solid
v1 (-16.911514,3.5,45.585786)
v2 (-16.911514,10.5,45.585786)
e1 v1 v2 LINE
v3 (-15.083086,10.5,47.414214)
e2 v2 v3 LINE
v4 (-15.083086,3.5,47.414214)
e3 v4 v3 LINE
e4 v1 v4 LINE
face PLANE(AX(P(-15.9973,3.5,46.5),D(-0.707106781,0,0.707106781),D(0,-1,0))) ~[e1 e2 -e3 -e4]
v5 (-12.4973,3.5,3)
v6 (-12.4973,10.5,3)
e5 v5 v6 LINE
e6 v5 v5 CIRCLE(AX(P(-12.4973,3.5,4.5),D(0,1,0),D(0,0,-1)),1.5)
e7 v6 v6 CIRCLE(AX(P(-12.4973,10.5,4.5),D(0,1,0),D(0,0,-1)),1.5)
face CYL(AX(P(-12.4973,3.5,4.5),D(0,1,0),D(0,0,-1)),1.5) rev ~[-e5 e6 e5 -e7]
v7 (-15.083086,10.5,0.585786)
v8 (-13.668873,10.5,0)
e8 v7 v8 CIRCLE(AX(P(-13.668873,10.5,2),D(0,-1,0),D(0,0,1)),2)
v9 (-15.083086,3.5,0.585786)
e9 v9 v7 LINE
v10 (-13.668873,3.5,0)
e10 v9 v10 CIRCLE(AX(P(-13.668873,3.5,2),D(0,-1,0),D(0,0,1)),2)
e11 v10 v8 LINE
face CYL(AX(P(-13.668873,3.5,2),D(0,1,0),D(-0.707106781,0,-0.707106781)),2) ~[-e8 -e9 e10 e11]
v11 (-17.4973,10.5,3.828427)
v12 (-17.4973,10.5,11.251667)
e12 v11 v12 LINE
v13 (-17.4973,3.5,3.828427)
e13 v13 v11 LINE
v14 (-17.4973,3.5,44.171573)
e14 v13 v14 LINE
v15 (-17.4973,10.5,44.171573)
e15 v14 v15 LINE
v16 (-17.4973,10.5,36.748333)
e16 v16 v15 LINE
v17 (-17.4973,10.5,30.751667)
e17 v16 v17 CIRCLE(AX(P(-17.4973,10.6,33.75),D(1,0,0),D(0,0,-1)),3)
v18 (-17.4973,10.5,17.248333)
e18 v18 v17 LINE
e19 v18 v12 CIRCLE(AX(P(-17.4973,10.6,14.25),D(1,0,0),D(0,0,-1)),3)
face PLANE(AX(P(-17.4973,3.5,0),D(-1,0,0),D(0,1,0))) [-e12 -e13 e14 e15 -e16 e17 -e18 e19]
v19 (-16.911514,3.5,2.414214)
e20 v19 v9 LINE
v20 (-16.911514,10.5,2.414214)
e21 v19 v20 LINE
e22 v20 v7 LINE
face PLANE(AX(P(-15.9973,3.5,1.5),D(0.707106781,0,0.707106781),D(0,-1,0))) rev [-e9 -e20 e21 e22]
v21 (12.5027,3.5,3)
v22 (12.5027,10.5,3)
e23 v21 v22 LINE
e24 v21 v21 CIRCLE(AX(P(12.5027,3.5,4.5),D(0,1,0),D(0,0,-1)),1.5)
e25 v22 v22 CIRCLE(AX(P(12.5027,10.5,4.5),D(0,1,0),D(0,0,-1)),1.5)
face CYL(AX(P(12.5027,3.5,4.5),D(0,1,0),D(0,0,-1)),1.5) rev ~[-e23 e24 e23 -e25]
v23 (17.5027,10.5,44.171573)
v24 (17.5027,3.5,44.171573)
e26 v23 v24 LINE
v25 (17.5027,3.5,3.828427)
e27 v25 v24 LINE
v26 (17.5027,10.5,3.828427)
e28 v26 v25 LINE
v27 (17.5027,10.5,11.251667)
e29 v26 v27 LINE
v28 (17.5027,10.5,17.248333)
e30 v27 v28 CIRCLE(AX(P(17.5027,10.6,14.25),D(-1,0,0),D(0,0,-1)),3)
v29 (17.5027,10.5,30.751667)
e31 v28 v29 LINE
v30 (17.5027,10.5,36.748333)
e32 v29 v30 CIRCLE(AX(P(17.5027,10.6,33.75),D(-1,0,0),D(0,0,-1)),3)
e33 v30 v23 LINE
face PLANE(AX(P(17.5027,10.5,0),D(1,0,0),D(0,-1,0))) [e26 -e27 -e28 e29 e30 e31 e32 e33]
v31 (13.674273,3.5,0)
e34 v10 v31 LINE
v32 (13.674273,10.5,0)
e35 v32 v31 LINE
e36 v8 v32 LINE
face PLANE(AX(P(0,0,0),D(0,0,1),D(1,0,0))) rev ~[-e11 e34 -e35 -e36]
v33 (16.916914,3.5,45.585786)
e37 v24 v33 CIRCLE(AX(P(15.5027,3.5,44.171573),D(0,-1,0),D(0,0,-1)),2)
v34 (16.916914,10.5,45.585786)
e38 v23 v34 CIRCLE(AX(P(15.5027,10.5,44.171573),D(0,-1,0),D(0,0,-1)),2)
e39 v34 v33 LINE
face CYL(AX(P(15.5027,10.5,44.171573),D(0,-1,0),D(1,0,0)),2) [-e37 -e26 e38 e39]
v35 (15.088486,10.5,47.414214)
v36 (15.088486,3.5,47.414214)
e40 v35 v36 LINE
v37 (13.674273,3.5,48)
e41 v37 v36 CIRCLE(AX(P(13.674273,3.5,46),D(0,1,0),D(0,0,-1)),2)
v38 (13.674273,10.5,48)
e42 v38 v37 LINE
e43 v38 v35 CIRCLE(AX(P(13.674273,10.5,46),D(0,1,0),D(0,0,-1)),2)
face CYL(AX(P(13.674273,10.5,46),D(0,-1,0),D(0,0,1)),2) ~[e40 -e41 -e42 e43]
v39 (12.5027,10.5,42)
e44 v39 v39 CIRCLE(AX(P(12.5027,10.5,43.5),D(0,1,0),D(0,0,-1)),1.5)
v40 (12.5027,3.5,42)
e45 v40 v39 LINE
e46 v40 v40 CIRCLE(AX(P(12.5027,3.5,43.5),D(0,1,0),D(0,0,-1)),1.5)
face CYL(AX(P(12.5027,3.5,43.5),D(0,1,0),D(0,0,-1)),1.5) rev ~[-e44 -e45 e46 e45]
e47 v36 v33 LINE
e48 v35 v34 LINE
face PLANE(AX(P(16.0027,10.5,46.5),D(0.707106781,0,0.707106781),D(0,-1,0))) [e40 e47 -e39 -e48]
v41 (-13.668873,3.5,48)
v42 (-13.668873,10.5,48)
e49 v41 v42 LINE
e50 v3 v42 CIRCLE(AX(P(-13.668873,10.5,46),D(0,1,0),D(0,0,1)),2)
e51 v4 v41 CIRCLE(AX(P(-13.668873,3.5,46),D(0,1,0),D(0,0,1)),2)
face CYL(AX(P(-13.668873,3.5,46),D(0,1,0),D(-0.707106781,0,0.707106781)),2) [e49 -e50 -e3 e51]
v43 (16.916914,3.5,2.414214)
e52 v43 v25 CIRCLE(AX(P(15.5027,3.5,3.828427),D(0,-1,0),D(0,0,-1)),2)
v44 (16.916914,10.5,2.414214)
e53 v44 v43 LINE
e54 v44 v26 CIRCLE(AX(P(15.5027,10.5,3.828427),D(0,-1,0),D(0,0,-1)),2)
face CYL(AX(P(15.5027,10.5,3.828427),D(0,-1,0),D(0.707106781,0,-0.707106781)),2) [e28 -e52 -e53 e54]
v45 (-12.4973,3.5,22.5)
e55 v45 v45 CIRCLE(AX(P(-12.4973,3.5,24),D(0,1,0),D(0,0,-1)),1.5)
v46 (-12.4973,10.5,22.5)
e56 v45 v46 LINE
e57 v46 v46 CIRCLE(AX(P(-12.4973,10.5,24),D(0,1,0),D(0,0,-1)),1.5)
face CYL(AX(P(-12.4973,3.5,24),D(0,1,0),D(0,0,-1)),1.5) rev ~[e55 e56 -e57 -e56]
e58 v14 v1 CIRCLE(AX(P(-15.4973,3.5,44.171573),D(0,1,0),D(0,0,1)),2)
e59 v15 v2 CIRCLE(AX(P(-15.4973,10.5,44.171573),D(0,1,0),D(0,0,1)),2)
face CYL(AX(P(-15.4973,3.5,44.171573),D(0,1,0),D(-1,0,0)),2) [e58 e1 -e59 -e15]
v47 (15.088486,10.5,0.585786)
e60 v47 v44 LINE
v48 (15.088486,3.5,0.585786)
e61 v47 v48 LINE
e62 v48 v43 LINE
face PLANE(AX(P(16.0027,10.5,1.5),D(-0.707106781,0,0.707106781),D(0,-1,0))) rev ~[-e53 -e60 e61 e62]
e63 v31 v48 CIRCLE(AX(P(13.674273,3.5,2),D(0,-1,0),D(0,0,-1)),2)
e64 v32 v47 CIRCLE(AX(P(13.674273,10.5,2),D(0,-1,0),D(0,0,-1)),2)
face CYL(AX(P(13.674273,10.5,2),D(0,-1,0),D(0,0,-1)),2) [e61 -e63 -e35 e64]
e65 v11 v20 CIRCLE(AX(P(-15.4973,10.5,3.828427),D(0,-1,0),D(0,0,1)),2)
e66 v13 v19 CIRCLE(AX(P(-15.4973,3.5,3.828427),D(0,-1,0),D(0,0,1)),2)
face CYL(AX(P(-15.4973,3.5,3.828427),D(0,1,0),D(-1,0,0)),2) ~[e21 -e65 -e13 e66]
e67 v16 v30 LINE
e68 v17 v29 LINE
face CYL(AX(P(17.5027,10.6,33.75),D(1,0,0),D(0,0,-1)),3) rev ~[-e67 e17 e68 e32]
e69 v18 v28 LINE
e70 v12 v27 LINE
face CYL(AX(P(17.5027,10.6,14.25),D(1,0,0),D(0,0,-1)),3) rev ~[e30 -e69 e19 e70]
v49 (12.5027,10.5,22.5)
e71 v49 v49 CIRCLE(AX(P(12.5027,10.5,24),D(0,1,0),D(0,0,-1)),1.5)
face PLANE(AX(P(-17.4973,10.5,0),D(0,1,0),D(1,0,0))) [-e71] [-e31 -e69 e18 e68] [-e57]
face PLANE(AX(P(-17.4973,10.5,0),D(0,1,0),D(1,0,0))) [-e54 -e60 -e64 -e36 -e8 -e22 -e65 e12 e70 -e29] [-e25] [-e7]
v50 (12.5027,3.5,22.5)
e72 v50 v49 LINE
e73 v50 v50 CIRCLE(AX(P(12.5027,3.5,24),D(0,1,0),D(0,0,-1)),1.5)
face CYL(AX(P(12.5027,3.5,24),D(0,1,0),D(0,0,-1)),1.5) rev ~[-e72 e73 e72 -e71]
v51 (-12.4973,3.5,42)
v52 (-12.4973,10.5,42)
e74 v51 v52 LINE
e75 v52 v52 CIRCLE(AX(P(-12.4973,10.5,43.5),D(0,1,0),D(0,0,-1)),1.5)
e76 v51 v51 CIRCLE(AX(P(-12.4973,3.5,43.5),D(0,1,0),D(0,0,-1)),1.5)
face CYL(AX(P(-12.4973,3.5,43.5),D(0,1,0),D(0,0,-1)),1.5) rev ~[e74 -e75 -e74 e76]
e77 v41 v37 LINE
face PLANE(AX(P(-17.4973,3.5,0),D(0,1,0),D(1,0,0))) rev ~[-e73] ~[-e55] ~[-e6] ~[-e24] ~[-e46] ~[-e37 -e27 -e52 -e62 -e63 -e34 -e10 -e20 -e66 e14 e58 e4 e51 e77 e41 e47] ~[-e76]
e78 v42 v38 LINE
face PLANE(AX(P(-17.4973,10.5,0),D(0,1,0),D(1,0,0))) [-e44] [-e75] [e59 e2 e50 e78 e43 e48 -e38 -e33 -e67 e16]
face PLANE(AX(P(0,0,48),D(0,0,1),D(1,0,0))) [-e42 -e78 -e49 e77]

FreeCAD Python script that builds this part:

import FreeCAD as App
import Part
import Sketcher
from FreeCAD import Vector
Q = App.Units.Quantity


def edges_at(feature, points):
    """Names of the edges that pass closest to the given points."""
    edges = feature.Shape.Edges
    near = lambda p: min(range(len(edges)), key=lambda i: edges[i].distToShape(Part.Vertex(*p))[0])
    return sorted({f"Edge{near(p) + 1}" for p in points})

doc = App.newDocument("Part")
params = doc.addObject("Spreadsheet::Sheet", "Params")
for row, (alias, value) in enumerate([
    ("sketch1_width", "35 mm"),
    ("sketch1_height", "7 mm"),
    ("pad1_length", "48 mm"),
    ("sketch2_diameter", "3 mm"),
    ("hole_diameter", "3 mm"),
    ("sketch3_diameter", "6 mm"),
    ("pocket1_length", "35 mm"),
    ("chamfer_size", "3 mm"),
    ("fillet_radius", "2 mm"),
], start=1):
    params.set(f"A{row}", alias)
    params.set(f"B{row}", "=" + value)
    params.setAlias(f"B{row}", alias)

body = doc.addObject("PartDesign::Body", "Body")

# Sketch on XY plane
sketch1 = doc.addObject("Sketcher::SketchObject", "Sketch")
body.addObject(sketch1)
sketch1.AttachmentSupport = (doc.XY_Plane, [""])
sketch1.MapMode = "FlatFace"
sketch1.addGeometry([
    Part.LineSegment(Vector(-17, 10, 0), Vector(-17, 4, 0)),
    Part.LineSegment(Vector(-17, 4, 0), Vector(18, 4, 0)),
    Part.LineSegment(Vector(18, 4, 0), Vector(18, 10, 0)),
    Part.LineSegment(Vector(18, 10, 0), Vector(-17, 10, 0)),
], False)
sketch1.addConstraint([
    Sketcher.Constraint("Coincident", 0, 2, 1, 1),
    Sketcher.Constraint("Coincident", 1, 2, 2, 1),
    Sketcher.Constraint("Coincident", 2, 2, 3, 1),
    Sketcher.Constraint("Coincident", 3, 2, 0, 1),
    Sketcher.Constraint("Vertical", 0),
    Sketcher.Constraint("Horizontal", 1),
    Sketcher.Constraint("Vertical", 2),
    Sketcher.Constraint("Horizontal", 3),
    Sketcher.Constraint("DistanceX", 1, 1, 1, 2, Q("35 mm")),
    Sketcher.Constraint("DistanceY", 0, 2, 0, 1, Q("7 mm")),
    Sketcher.Constraint("DistanceY", -1, 1, 0, 2, Q("3.5 mm")),
    Sketcher.Constraint("DistanceX", 0, 2, -1, 1, Q("17.4973 mm")),
])
sketch1.setExpression("Constraints[8]", "Params.sketch1_width")
sketch1.setExpression("Constraints[9]", "Params.sketch1_height")
pad1 = doc.addObject("PartDesign::Pad", "Pad")
body.addObject(pad1)
pad1.Profile = sketch1
pad1.setExpression("Length", "Params.pad1_length")

# Sketch on XZ plane
sketch2 = doc.addObject("Sketcher::SketchObject", "Sketch001")
body.addObject(sketch2)
sketch2.AttachmentSupport = (doc.XZ_Plane, [""])
sketch2.MapMode = "FlatFace"
sketch2.AttachmentOffset = App.Placement(Vector(0, 0, -3.5), App.Rotation())
sketch2.addGeometry([
    Part.Circle(Vector(-12.5, 4.5, 0), Vector(0, 0, 1), 1.5),  # 0
    Part.Circle(Vector(-12.5, 24, 0), Vector(0, 0, 1), 1.5),  # 1
    Part.Circle(Vector(-12.5, 43.5, 0), Vector(0, 0, 1), 1.5),  # 2
    Part.Circle(Vector(12.5, 4.5, 0), Vector(0, 0, 1), 1.5),  # 3
    Part.Circle(Vector(12.5, 24, 0), Vector(0, 0, 1), 1.5),  # 4
    Part.Circle(Vector(12.5, 43.5, 0), Vector(0, 0, 1), 1.5),  # 5
], False)
sketch2.addConstraint([
    Sketcher.Constraint("Equal", 0, 1),
    Sketcher.Constraint("Equal", 1, 2),
    Sketcher.Constraint("Equal", 2, 3),
    Sketcher.Constraint("Equal", 3, 4),
    Sketcher.Constraint("Equal", 4, 5),
    Sketcher.Constraint("Horizontal", 0, 3, 3, 3),
    Sketcher.Constraint("Horizontal", 1, 3, 4, 3),
    Sketcher.Constraint("Horizontal", 2, 3, 5, 3),
    Sketcher.Constraint("Vertical", 0, 3, 1, 3),
    Sketcher.Constraint("Vertical", 1, 3, 2, 3),
    Sketcher.Constraint("Vertical", 3, 3, 4, 3),
    Sketcher.Constraint("Vertical", 4, 3, 5, 3),
    Sketcher.Constraint("Diameter", 0, Q("3 mm")),
    Sketcher.Constraint("DistanceY", -1, 1, 1, 3, Q("24 mm")),
    Sketcher.Constraint("DistanceY", 0, 3, 2, 3, Q("39 mm")),
    Sketcher.Constraint("DistanceX", 0, 3, 3, 3, Q("25 mm")),
    Sketcher.Constraint("DistanceY", -1, 1, 0, 3, Q("4.5 mm")),
    Sketcher.Constraint("DistanceX", 0, 3, -1, 1, Q("12.4973 mm")),
])
sketch2.setExpression("Constraints[12]", "Params.sketch2_diameter")
doc.recompute()
hole = doc.addObject("PartDesign::Hole", "Hole")
body.addObject(hole)
hole.Profile = sketch2
hole.ThreadType = "None"
hole.setExpression("Diameter", "Params.hole_diameter")
hole.DepthType = "ThroughAll"

# Sketch on YZ plane
sketch3 = doc.addObject("Sketcher::SketchObject", "Sketch002")
body.addObject(sketch3)
sketch3.AttachmentSupport = (doc.YZ_Plane, [""])
sketch3.MapMode = "FlatFace"
sketch3.AttachmentOffset = App.Placement(Vector(0, 0, 17.5027), App.Rotation())
sketch3.addGeometry([
    Part.Circle(Vector(10.6, 14.2, 0), Vector(0, 0, 1), 3),
    Part.Circle(Vector(10.6, 33.8, 0), Vector(0, 0, 1), 3),
], False)
sketch3.addConstraint([
    Sketcher.Constraint("Equal", 0, 1),
    Sketcher.Constraint("Vertical", 0, 3, 1, 3),
    Sketcher.Constraint("Diameter", 0, Q("6 mm")),
    Sketcher.Constraint("DistanceY", -1, 1, 0, 3, Q("14.25 mm")),
    Sketcher.Constraint("DistanceX", -1, 1, 0, 3, Q("10.6 mm")),
    Sketcher.Constraint("DistanceY", 0, 3, 1, 3, Q("19.5 mm")),
])
sketch3.setExpression("Constraints[2]", "Params.sketch3_diameter")
pocket1 = doc.addObject("PartDesign::Pocket", "Pocket")
body.addObject(pocket1)
pocket1.Profile = sketch3
pocket1.setExpression("Length", "Params.pocket1_length")
doc.recompute()

chamfer = doc.addObject("PartDesign::Chamfer", "Chamfer")
body.addObject(chamfer)
chamfer.Base = (pocket1, edges_at(pocket1, [
    (-17.497, 7, 0),
    (-17.497, 7, 48),
    (17.503, 7, 48),
    (17.503, 7, 0),
]))
chamfer.setExpression("Size", "Params.chamfer_size")
doc.recompute()

fillet = doc.addObject("PartDesign::Fillet", "Fillet")
body.addObject(fillet)
fillet.Base = (chamfer, edges_at(chamfer, [
    (-17.497, 7, 3),
    (-14.497, 7, 0),
    (-17.497, 7, 45),
    (-14.497, 7, 48),
    (14.503, 7, 48),
    (17.503, 7, 45),
    (14.503, 7, 0),
    (17.503, 7, 3),
]))
fillet.setExpression("Radius", "Params.fillet_radius")

doc.recompute()
